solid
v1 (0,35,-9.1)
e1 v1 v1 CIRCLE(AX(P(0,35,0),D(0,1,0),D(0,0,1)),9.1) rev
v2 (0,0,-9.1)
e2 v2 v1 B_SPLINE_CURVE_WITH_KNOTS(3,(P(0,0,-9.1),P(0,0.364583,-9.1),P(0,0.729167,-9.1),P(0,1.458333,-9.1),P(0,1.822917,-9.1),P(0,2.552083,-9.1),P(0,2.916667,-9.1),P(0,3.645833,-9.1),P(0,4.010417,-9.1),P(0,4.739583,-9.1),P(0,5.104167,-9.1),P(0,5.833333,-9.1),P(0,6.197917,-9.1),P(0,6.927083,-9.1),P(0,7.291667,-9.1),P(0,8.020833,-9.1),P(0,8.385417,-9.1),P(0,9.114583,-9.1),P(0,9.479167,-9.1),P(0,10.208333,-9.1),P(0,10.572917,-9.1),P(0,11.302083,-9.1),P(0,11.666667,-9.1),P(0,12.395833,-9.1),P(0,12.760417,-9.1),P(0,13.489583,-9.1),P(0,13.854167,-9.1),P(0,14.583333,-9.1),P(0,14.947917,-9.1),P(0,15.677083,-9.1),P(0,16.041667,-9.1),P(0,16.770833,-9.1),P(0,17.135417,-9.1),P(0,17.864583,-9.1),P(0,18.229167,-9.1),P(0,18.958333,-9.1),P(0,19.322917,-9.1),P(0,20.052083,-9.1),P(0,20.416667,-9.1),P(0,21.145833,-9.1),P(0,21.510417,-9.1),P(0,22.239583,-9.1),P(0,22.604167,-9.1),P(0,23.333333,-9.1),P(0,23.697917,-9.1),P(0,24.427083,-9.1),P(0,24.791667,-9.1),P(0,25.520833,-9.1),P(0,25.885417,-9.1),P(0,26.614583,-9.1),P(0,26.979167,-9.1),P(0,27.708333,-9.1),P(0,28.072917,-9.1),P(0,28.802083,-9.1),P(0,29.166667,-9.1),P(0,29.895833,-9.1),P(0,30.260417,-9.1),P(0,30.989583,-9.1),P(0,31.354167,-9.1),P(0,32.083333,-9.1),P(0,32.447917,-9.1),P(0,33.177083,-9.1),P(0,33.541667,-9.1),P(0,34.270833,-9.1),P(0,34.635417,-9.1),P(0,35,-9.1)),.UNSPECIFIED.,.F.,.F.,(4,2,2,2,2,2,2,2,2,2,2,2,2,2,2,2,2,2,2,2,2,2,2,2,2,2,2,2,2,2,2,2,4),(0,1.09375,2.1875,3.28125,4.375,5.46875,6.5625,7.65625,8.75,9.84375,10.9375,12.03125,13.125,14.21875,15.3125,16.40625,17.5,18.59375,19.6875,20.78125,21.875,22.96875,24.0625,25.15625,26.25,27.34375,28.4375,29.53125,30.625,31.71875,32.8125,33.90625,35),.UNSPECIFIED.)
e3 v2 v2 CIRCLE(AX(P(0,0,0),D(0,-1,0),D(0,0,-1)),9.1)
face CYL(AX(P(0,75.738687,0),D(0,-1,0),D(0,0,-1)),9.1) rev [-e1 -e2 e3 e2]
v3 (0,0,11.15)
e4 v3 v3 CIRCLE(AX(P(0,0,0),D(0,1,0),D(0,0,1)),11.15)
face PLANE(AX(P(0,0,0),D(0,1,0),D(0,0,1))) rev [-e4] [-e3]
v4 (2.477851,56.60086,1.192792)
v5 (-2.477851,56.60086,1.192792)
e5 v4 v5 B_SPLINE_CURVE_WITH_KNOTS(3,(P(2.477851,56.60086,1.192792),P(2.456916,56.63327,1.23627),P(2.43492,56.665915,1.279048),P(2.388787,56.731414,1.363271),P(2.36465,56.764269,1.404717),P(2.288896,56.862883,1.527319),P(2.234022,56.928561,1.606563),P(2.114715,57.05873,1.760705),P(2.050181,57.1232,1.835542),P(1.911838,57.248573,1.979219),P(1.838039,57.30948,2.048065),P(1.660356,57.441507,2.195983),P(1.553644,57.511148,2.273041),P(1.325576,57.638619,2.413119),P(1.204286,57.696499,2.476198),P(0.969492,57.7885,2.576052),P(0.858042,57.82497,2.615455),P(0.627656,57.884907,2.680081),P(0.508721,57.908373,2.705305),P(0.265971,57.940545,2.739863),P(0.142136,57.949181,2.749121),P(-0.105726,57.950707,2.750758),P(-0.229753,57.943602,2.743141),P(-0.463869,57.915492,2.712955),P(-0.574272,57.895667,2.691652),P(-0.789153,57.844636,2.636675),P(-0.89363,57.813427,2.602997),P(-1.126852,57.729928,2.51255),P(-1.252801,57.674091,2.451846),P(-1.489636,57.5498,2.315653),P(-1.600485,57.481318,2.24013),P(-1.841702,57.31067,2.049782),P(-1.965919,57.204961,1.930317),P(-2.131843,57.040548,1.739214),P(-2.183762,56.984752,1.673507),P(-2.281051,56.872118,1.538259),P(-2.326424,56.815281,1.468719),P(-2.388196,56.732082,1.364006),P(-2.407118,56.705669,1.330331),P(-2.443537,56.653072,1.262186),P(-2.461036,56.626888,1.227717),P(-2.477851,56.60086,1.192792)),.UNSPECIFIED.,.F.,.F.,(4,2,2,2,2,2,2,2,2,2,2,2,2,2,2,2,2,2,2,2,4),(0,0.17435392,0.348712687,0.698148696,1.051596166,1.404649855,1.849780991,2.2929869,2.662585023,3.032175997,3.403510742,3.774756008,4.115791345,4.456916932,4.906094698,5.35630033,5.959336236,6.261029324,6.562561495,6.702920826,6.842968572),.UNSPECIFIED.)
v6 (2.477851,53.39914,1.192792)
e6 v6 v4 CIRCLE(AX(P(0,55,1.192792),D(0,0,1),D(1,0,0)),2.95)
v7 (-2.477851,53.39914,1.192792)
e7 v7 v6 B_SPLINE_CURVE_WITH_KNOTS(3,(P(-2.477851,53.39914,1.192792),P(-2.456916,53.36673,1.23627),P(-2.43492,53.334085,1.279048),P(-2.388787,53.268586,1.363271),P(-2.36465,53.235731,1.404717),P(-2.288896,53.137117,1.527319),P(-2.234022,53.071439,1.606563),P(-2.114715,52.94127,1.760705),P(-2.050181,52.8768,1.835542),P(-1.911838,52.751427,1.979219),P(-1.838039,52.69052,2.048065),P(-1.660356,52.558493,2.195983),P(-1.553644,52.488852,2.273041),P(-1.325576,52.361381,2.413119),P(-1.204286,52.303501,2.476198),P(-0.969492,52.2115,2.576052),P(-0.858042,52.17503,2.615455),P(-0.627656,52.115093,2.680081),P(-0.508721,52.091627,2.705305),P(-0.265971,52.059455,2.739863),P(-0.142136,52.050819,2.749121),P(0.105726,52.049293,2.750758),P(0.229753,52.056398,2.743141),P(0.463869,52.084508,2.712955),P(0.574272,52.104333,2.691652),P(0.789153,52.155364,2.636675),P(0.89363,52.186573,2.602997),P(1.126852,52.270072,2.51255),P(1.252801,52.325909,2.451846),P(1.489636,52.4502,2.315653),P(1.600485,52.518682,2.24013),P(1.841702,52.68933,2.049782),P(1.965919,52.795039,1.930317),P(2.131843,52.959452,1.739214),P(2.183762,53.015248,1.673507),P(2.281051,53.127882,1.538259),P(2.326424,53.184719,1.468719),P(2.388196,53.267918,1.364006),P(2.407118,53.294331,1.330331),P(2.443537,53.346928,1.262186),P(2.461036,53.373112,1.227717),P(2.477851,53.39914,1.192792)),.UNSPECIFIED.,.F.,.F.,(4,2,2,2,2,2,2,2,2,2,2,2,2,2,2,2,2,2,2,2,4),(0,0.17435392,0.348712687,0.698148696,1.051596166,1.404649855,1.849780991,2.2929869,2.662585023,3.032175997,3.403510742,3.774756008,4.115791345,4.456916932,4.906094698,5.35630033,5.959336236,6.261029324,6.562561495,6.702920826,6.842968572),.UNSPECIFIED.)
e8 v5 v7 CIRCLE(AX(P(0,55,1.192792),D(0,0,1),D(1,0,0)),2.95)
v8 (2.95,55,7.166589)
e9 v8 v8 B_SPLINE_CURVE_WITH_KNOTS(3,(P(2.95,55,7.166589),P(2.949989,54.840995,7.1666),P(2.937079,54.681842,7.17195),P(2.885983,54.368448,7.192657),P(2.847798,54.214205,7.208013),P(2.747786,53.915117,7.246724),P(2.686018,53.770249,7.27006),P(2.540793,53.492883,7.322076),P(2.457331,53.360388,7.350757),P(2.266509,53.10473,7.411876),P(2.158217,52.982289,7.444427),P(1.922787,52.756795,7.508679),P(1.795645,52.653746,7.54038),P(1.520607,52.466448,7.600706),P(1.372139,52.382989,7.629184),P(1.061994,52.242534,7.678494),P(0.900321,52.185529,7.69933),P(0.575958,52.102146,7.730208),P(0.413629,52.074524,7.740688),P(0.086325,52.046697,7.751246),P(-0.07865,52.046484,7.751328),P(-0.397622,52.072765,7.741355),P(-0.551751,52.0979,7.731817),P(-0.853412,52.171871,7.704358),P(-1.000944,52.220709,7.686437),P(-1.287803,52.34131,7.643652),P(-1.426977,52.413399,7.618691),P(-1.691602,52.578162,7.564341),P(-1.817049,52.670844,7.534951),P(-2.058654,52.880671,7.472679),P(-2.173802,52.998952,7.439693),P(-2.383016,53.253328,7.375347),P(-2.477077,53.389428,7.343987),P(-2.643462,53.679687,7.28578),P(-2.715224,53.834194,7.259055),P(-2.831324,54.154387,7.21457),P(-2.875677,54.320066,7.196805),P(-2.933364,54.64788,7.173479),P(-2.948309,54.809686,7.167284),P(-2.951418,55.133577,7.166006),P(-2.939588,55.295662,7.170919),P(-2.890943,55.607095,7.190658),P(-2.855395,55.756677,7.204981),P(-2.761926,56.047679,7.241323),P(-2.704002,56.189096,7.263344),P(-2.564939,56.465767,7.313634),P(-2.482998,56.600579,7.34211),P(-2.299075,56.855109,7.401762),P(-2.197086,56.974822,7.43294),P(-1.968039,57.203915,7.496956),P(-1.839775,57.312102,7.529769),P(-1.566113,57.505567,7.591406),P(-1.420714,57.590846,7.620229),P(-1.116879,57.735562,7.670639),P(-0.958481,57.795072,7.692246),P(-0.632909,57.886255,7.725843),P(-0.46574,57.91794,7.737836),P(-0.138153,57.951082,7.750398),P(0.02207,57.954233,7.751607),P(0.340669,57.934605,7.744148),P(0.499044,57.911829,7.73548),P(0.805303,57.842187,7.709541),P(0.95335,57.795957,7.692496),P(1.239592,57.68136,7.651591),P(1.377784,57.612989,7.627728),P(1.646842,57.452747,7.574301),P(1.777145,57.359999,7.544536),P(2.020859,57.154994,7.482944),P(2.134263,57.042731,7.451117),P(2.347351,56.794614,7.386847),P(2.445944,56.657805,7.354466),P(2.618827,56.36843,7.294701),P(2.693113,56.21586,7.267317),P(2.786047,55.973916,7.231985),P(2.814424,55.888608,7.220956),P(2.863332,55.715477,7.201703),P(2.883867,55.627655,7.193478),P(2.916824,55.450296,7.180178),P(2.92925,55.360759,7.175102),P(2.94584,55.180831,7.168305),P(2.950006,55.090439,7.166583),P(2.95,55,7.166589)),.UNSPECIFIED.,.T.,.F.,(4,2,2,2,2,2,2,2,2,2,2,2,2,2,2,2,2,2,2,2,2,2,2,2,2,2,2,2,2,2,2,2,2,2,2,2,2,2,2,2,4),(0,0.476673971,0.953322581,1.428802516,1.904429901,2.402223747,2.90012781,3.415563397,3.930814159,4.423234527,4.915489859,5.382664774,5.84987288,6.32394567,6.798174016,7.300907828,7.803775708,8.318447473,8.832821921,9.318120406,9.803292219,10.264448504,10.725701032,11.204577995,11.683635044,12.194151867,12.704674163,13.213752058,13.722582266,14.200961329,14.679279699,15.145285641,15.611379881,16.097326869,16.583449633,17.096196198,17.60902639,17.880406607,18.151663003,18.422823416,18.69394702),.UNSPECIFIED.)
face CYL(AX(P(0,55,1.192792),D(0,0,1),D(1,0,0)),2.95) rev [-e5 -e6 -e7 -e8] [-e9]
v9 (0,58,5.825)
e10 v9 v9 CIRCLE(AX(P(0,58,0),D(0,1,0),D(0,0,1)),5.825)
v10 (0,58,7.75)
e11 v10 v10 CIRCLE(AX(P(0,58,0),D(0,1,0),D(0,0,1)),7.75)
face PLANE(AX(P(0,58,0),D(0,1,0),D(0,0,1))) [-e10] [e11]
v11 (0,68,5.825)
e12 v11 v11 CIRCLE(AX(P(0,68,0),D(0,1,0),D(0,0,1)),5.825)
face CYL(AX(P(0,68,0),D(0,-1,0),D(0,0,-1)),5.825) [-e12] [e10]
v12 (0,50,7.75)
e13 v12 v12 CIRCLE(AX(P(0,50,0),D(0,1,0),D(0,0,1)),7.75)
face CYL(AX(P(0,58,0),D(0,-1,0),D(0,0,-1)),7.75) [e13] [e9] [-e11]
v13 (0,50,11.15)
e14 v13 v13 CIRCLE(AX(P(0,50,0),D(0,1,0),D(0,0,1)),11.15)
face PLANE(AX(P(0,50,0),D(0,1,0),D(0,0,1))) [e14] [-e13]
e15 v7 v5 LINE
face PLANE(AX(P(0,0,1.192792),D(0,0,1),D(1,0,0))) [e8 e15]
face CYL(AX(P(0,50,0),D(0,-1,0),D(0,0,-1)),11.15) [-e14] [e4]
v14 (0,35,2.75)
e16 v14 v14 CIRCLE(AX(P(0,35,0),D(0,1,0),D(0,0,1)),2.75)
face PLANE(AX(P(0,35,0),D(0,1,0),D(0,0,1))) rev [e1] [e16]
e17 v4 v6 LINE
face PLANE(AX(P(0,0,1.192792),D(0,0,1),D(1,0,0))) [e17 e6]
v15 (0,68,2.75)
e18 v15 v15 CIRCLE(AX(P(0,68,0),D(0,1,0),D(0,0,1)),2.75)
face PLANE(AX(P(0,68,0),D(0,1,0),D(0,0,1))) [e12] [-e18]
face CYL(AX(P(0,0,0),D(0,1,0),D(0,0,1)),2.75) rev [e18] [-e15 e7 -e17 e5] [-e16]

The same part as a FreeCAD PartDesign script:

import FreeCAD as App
import Part
import Sketcher
from FreeCAD import Vector


def add_polygon(sketch, points):
    """Adds a closed chain of lines whose ends are joined by coincident constraints."""
    first, n = sketch.GeometryCount, len(points)
    for a, b in zip(points, points[1:] + points[:1]):
        sketch.addGeometry(Part.LineSegment(App.Vector(*a, 0), App.Vector(*b, 0)), False)
    for i in range(n):
        sketch.addConstraint(Sketcher.Constraint("Coincident", first + i, 2, first + (i + 1) % n, 1))

doc = App.newDocument("Part")
body = doc.addObject("PartDesign::Body", "Body")

# Sketch on XZ plane
sketch1 = body.newObject("Sketcher::SketchObject", "Sketch")
sketch1.AttachmentSupport = (doc.getObject("XZ_Plane"), [""])
sketch1.MapMode = "FlatFace"
sketch1.addGeometry(Part.Circle(Vector(0, 0, 0), Vector(0, 0, 1), 11), False)
sketch1.addConstraint([
    Sketcher.Constraint("Coincident", 0, 3, -1, 1),
    Sketcher.Constraint("Diameter", 0, 22.3),
])
pad1 = body.newObject("PartDesign::Pad", "Pad")
pad1.Profile = sketch1
pad1.Length = 50
pad1.Reversed = True

# Sketch on XZ plane
sketch2 = body.newObject("Sketcher::SketchObject", "Sketch001")
sketch2.AttachmentSupport = (doc.getObject("XZ_Plane"), [""])
sketch2.MapMode = "FlatFace"
sketch2.AttachmentOffset = App.Placement(Vector(0, 0, -50), App.Rotation())
sketch2.addGeometry(Part.Circle(Vector(0, 0, 0), Vector(0, 0, 1), 8), False)
sketch2.addConstraint([
    Sketcher.Constraint("Coincident", 0, 3, -1, 1),
    Sketcher.Constraint("Diameter", 0, 15.5),
])
pad2 = body.newObject("PartDesign::Pad", "Pad001")
pad2.Profile = sketch2
pad2.Length = 8
pad2.Reversed = True

# Sketch on XZ plane
sketch3 = body.newObject("Sketcher::SketchObject", "Sketch002")
sketch3.AttachmentSupport = (doc.getObject("XZ_Plane"), [""])
sketch3.MapMode = "FlatFace"
sketch3.AttachmentOffset = App.Placement(Vector(0, 0, -58), App.Rotation())
sketch3.addGeometry(Part.Circle(Vector(0, 0, 0), Vector(0, 0, 1), 6), False)
sketch3.addConstraint([
    Sketcher.Constraint("Coincident", 0, 3, -1, 1),
    Sketcher.Constraint("Diameter", 0, 11.65),
])
pad3 = body.newObject("PartDesign::Pad", "Pad002")
pad3.Profile = sketch3
pad3.Length = 10
pad3.Reversed = True

# Sketch on XZ plane
sketch4 = body.newObject("Sketcher::SketchObject", "Sketch003")
sketch4.AttachmentSupport = (doc.getObject("XZ_Plane"), [""])
sketch4.MapMode = "FlatFace"
sketch4.addGeometry(Part.Circle(Vector(0, 0, 0), Vector(0, 0, 1), 9), False)
sketch4.addConstraint([
    Sketcher.Constraint("Coincident", 0, 3, -1, 1),
    Sketcher.Constraint("Diameter", 0, 18.2),
])
pocket1 = body.newObject("PartDesign::Pocket", "Pocket")
pocket1.Profile = sketch4
pocket1.Length = 35

# Sketch on XZ plane
sketch5 = body.newObject("Sketcher::SketchObject", "Sketch004")
sketch5.AttachmentSupport = (doc.getObject("XZ_Plane"), [""])
sketch5.MapMode = "FlatFace"
sketch5.AttachmentOffset = App.Placement(Vector(0, 0, -68), App.Rotation())
sketch5.addGeometry(Part.Circle(Vector(0, 0, 0), Vector(0, 0, 1), 2.8), False)
sketch5.addConstraint([
    Sketcher.Constraint("Coincident", 0, 3, -1, 1),
    Sketcher.Constraint("Diameter", 0, 5.5),
])
pocket2 = body.newObject("PartDesign::Pocket", "Pocket001")
pocket2.Profile = sketch5
pocket2.Type = "ThroughAll"
pocket2.Reversed = True
body2 = doc.addObject("PartDesign::Body", "Body001")

# Sketch on XZ plane
sketch6 = body2.newObject("Sketcher::SketchObject", "Sketch005")
sketch6.AttachmentSupport = (doc.getObject("XZ_Plane001"), [""])
sketch6.MapMode = "FlatFace"
sketch6.AttachmentOffset = App.Placement(Vector(0, 0, -58), App.Rotation())
add_polygon(sketch6, [(-3, 8), (-3, 19), (3, 19), (3, 8)])  # lines 0-3
sketch6.addConstraint([
    Sketcher.Constraint("Vertical", 0),
    Sketcher.Constraint("Horizontal", 1),
    Sketcher.Constraint("Vertical", 2),
    Sketcher.Constraint("Horizontal", 3),
    Sketcher.Constraint("DistanceX", 1, 1, 1, 2, 6.0),
    Sketcher.Constraint("DistanceX", 0, 2, -1, 1, 3.0),
    Sketcher.Constraint("DistanceY", -1, 1, 2, 2, 7.75),
    Sketcher.Constraint("DistanceY", 0, 1, 0, 2, 11.442792),
])
pad4 = body2.newObject("PartDesign::Pad", "Pad003")
pad4.Profile = sketch6
pad4.Length = 6

# Sketch on XZ plane
sketch7 = body2.newObject("Sketcher::SketchObject", "Sketch006")
sketch7.AttachmentSupport = (doc.getObject("XZ_Plane001"), [""])
sketch7.MapMode = "FlatFace"
sketch7.AttachmentOffset = App.Placement(Vector(0, 0, -58), App.Rotation())
add_polygon(sketch7, [(-3, 7.8), (-3, 8.8), (3, 8.8), (3, 7.8)])  # lines 0-3
sketch7.addConstraint([
    Sketcher.Constraint("Vertical", 0),
    Sketcher.Constraint("Horizontal", 1),
    Sketcher.Constraint("Vertical", 2),
    Sketcher.Constraint("Horizontal", 3),
    Sketcher.Constraint("DistanceX", 1, 1, 1, 2, 6.0),
    Sketcher.Constraint("DistanceY", 0, 1, 0, 2, 1.0),
    Sketcher.Constraint("DistanceX", 0, 2, -1, 1, 3.0),
    Sketcher.Constraint("DistanceY", -1, 1, 0, 2, 8.75),
])
pocket3 = body2.newObject("PartDesign::Pocket", "Pocket002")
pocket3.Profile = sketch7
pocket3.Length = 6
pocket3.Reversed = True
body3 = doc.addObject("PartDesign::Body", "Body002")

# Sketch on XY plane
sketch8 = body3.newObject("Sketcher::SketchObject", "Sketch007")
sketch8.AttachmentSupport = (doc.getObject("XY_Plane002"), [""])
sketch8.MapMode = "FlatFace"
sketch8.AttachmentOffset = App.Placement(Vector(0, 0, 19.192792), App.Rotation())
sketch8.addGeometry(Part.Circle(Vector(0, 55, 0), Vector(0, 0, 1), 3), False)
sketch8.addConstraint([
    Sketcher.Constraint("PointOnObject", 0, 3, -2),
    Sketcher.Constraint("Diameter", 0, 5.9),
    Sketcher.Constraint("DistanceY", -1, 1, 0, 3, 55.0),
])
pad5 = body3.newObject("PartDesign::Pad", "Pad004")
pad5.Profile = sketch8
pad5.Length = 18
pad5.Reversed = True
doc.recompute()

body4 = doc.addObject("PartDesign::Body", "Body003")
body4.BaseFeature = body3
boolean = body.newObject("PartDesign::Boolean", "Boolean")
boolean.Type = "Cut"
boolean.addObjects([body4])
doc.recompute()

boolean2 = body2.newObject("PartDesign::Boolean", "Boolean001")
boolean2.Type = "Cut"
boolean2.addObjects([body3])

# Sketch on XZ plane
sketch9 = body2.newObject("Sketcher::SketchObject", "Sketch008")
sketch9.AttachmentSupport = (doc.getObject("XZ_Plane001"), [""])
sketch9.MapMode = "FlatFace"
sketch9.AttachmentOffset = App.Placement(Vector(0, 0, -58), App.Rotation())
add_polygon(sketch9, [(-3, 9), (-3, 19), (3, 19), (3, 9)])  # lines 0-3
sketch9.addConstraint([
    Sketcher.Constraint("Vertical", 0),
    Sketcher.Constraint("Horizontal", 1),
    Sketcher.Constraint("Vertical", 2),
    Sketcher.Constraint("Horizontal", 3),
    Sketcher.Constraint("DistanceX", 1, 1, 1, 2, 6.0),
    Sketcher.Constraint("DistanceX", 0, 2, -1, 1, 3.0),
    Sketcher.Constraint("DistanceY", -1, 1, 2, 2, 8.75),
    Sketcher.Constraint("DistanceY", 0, 1, 0, 2, 10.442792),
])
pocket4 = body2.newObject("PartDesign::Pocket", "Pocket003")
pocket4.Profile = sketch9
pocket4.Length = 8
pocket4.Reversed = True

doc.recompute()
